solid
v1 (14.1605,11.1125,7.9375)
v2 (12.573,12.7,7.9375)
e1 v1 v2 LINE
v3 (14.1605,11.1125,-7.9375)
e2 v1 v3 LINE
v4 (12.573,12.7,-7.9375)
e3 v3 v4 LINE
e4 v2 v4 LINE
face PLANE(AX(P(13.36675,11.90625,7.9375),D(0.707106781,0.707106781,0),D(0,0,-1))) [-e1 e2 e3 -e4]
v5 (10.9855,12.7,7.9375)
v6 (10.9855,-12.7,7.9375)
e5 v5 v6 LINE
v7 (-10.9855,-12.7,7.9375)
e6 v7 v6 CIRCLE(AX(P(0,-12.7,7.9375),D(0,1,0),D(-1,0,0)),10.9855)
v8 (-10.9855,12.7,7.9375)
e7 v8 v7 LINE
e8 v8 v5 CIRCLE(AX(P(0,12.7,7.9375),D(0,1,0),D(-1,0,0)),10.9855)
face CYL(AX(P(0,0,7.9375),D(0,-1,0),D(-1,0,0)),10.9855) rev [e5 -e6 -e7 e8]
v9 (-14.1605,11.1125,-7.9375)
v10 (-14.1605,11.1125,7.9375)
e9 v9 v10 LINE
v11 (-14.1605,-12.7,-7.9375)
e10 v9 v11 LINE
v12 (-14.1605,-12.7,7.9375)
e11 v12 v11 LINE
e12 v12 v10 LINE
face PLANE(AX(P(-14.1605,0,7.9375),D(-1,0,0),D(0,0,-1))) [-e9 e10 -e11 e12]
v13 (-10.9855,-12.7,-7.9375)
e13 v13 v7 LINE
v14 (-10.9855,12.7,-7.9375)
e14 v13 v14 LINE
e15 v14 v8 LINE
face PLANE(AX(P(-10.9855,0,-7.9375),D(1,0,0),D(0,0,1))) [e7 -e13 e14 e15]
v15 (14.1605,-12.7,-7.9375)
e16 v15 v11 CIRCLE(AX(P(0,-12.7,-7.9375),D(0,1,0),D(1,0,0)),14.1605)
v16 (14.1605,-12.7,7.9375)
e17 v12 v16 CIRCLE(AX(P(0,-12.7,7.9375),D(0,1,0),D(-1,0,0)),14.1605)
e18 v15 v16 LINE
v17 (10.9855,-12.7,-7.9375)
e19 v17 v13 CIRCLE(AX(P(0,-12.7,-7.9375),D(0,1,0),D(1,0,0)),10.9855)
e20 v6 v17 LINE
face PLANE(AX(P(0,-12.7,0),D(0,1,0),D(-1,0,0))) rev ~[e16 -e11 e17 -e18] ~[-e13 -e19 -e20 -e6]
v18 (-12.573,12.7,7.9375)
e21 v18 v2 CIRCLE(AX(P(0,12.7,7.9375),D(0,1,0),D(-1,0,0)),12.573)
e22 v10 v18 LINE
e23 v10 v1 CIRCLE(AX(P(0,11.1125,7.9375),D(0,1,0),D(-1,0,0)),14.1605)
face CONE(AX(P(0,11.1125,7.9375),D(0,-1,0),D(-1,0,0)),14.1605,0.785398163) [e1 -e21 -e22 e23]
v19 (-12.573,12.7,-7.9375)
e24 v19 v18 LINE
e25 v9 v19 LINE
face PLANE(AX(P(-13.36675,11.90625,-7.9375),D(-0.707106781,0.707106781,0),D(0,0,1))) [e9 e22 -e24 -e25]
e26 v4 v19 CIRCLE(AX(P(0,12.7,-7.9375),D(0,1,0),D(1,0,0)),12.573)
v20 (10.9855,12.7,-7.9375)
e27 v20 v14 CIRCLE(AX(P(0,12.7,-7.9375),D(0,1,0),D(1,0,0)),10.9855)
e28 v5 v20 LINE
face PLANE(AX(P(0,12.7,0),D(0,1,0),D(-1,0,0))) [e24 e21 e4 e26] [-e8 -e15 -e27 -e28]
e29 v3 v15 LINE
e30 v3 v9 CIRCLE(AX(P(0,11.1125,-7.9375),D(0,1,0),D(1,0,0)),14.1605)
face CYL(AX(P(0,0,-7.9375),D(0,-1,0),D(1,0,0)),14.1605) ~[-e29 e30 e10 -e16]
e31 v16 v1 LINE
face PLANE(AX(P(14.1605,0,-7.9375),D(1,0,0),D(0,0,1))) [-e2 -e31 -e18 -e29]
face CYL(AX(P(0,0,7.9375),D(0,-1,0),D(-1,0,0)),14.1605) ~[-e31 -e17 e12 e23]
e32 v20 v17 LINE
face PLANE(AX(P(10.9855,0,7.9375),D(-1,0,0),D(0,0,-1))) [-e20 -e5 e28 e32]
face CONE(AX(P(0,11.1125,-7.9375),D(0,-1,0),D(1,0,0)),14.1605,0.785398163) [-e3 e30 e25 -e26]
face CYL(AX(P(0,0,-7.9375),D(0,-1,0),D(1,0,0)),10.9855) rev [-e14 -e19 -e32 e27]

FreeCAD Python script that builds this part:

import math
import FreeCAD as App
import Part
import Sketcher
Q = App.Units.Quantity


def edges_at(feature, points):
    """Names of the edges that pass closest to the given points."""
    edges = feature.Shape.Edges
    near = lambda p: min(range(len(edges)), key=lambda i: edges[i].distToShape(Part.Vertex(*p))[0])
    return sorted({f"Edge{near(p) + 1}" for p in points})

doc = App.newDocument("Part")
body = doc.addObject("PartDesign::Body", "Body")

# Sketch on XZ plane
sketch1 = doc.addObject("Sketcher::SketchObject", "Sketch")
body.addObject(sketch1)
sketch1.AttachmentSupport = (doc.XZ_Plane, [""])
sketch1.MapMode = "FlatFace"
sketch1.addGeometry([
    Part.LineSegment(App.Vector(-14, -8, 0), App.Vector(-14, 8, 0)),  # 0
    Part.ArcOfCircle(Part.Circle(App.Vector(0, 8, 0), App.Vector(0, 0, 1), 14), math.radians(0), math.radians(180)),  # 1
    Part.LineSegment(App.Vector(14, 8, 0), App.Vector(14, -8, 0)),  # 2
    Part.ArcOfCircle(Part.Circle(App.Vector(0, -8, 0), App.Vector(0, 0, 1), 14), math.radians(180), math.radians(360)),  # 3
    Part.LineSegment(App.Vector(-11, 8, 0), App.Vector(-11, -8, 0)),  # 4
    Part.ArcOfCircle(Part.Circle(App.Vector(0, -8, 0), App.Vector(0, 0, 1), 11), math.radians(180), math.radians(360)),  # 5
    Part.LineSegment(App.Vector(11, -8, 0), App.Vector(11, 8, 0)),  # 6
    Part.ArcOfCircle(Part.Circle(App.Vector(0, 8, 0), App.Vector(0, 0, 1), 11), math.radians(0), math.radians(180)),  # 7
], False)
sketch1.addConstraint([
    Sketcher.Constraint("Tangent", 0, 2, 1, 2),
    Sketcher.Constraint("Tangent", 1, 1, 2, 1),
    Sketcher.Constraint("Tangent", 2, 2, 3, 2),
    Sketcher.Constraint("Tangent", 3, 1, 0, 1),
    Sketcher.Constraint("Tangent", 4, 2, 5, 1),
    Sketcher.Constraint("Tangent", 5, 2, 6, 1),
    Sketcher.Constraint("Tangent", 6, 2, 7, 1),
    Sketcher.Constraint("Tangent", 7, 2, 4, 1),
    Sketcher.Constraint("Vertical", 0),
    Sketcher.Constraint("Vertical", 2),
    Sketcher.Constraint("Vertical", 4),
    Sketcher.Constraint("Vertical", 6),
    Sketcher.Constraint("Coincident", 5, 3, 3, 3),
    Sketcher.Constraint("Symmetric", 1, 3, 3, 3, -1, 1),
    Sketcher.Constraint("Horizontal", 7, 3, 0, 2),
    Sketcher.Constraint("DistanceX", 3, 1, 4, 2, Q("0.125 in")),
    Sketcher.Constraint("Radius", 1, Q("0.5575 in")),
    Sketcher.Constraint("DistanceY", 0, 1, 0, 2, Q("0.625 in")),
])
pad1 = doc.addObject("PartDesign::Pad", "Pad")
body.addObject(pad1)
pad1.Profile = sketch1
pad1.Length = Q("1 in")
pad1.Midplane = True
doc.recompute()

chamfer = doc.addObject("PartDesign::Chamfer", "Chamfer")
body.addObject(chamfer)
chamfer.Base = (pad1, edges_at(pad1, [
    (0, 12.7, 22.098),
    (14.161, 12.7, 0),
    (0, 12.7, -22.098),
    (-14.161, 12.7, 0),
]))
chamfer.Size = Q("0.0625 in")

doc.recompute()
